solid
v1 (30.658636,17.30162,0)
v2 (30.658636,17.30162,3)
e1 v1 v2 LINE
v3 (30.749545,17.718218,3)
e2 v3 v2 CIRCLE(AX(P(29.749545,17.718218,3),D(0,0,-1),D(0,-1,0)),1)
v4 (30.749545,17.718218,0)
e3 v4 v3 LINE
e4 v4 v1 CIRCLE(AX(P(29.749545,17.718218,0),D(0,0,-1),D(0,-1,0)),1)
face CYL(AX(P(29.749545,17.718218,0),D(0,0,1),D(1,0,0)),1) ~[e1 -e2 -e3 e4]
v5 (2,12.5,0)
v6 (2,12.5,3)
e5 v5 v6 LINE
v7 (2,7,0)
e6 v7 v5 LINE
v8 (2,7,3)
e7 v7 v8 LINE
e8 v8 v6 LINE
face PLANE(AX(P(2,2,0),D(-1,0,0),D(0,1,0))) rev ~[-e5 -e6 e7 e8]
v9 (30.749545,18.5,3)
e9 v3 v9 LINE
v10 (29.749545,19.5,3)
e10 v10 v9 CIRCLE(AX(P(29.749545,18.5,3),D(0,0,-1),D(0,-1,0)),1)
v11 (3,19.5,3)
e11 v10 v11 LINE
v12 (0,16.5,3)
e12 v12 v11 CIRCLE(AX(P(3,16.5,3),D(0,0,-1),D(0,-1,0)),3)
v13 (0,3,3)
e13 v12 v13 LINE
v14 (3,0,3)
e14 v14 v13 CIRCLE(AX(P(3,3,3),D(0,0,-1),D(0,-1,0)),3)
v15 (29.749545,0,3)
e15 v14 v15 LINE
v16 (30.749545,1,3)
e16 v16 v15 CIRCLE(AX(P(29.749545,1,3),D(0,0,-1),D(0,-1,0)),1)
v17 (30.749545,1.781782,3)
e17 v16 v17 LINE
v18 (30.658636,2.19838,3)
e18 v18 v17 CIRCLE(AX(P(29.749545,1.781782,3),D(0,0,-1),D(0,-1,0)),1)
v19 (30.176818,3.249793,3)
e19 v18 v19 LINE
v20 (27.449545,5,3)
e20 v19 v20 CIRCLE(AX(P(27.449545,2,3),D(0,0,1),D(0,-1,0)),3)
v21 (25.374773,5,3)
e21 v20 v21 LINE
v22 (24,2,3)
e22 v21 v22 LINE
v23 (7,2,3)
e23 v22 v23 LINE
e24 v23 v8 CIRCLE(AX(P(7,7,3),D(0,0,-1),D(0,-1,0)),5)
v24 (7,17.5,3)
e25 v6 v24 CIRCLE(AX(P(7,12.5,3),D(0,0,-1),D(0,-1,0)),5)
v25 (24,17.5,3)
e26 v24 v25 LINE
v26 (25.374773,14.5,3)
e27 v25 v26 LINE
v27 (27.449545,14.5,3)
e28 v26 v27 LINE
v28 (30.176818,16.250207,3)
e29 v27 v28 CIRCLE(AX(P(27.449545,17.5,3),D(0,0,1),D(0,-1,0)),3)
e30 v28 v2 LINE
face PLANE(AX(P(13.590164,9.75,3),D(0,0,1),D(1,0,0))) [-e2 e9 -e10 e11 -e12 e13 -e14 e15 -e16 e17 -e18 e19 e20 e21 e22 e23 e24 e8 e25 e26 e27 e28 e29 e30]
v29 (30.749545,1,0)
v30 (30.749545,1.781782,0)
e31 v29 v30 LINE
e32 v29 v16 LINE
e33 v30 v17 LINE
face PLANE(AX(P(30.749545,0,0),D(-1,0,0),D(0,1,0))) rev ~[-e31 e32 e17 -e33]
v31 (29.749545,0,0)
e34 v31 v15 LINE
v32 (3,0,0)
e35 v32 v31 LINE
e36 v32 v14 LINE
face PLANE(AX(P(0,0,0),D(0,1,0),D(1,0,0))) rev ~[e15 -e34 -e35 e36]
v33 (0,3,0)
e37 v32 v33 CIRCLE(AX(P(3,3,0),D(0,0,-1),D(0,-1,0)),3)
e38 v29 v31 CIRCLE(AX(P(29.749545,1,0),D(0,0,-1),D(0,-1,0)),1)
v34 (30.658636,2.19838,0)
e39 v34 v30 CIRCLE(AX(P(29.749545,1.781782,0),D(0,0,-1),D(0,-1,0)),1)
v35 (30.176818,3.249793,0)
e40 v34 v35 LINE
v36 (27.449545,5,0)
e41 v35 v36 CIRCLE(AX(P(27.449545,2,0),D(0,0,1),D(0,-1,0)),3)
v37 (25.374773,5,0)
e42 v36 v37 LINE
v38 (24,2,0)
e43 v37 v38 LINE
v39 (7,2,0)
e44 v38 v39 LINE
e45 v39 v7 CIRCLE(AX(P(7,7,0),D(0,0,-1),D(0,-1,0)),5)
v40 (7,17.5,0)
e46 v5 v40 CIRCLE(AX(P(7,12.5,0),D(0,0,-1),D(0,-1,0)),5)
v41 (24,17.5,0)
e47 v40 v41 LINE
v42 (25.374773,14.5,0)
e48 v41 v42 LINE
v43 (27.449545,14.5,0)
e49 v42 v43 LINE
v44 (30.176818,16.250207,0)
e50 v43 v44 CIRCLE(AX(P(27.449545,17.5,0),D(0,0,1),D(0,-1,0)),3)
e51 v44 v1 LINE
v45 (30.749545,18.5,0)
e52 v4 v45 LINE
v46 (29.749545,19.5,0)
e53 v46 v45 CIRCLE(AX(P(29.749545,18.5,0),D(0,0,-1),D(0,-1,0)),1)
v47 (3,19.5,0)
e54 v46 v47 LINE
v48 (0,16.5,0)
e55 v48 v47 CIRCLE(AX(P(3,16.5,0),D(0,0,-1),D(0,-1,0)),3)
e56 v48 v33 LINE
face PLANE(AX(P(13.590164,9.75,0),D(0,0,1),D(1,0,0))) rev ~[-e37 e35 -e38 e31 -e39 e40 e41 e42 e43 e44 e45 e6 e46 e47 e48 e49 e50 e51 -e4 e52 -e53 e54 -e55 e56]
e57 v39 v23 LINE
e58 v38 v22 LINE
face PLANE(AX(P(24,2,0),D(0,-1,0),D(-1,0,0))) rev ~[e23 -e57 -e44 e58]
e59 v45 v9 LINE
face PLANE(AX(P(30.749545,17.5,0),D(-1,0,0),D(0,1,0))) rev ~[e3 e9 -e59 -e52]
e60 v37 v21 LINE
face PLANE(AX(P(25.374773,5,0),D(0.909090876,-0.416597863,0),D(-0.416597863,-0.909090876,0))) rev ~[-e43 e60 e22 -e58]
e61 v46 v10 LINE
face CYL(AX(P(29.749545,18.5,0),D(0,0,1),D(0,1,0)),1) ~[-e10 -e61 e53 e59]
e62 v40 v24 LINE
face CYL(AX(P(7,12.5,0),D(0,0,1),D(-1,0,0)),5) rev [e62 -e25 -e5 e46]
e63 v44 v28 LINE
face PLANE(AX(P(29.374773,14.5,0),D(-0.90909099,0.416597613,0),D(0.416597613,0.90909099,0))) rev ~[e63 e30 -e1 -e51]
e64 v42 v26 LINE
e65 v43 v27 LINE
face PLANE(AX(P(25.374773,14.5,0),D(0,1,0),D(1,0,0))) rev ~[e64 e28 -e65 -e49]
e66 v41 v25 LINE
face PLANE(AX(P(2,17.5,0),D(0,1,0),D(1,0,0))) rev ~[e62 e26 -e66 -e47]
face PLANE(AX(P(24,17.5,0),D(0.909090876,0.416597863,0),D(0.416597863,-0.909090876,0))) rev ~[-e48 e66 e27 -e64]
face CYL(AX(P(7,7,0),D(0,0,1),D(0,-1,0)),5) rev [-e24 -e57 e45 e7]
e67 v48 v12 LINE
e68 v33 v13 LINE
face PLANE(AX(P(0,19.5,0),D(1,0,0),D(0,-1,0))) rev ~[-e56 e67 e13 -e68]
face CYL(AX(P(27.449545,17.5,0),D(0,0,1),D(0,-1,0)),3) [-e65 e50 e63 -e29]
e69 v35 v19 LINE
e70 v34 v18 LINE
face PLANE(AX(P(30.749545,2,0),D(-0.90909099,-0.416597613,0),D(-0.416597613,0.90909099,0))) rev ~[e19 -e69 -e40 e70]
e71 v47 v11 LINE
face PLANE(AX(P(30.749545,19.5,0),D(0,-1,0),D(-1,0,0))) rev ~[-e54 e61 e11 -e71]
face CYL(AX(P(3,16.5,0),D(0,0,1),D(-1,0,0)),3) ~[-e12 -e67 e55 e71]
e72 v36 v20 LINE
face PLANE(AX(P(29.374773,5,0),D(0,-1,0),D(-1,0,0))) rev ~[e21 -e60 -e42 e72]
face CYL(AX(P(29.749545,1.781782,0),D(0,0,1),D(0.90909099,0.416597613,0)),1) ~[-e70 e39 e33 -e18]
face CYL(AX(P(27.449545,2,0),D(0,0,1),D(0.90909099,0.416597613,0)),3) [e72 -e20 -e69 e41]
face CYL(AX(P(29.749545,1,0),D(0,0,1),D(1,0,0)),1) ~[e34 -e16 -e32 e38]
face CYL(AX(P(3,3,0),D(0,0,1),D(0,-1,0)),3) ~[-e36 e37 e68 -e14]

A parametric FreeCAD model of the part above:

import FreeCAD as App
import Part
import Sketcher

V = App.Vector
Q = App.Units.Quantity


def edges_at(feature, points):
    """Names of the edges that pass closest to the given points."""
    edges = feature.Shape.Edges
    near = lambda p: min(range(len(edges)), key=lambda i: edges[i].distToShape(Part.Vertex(*p))[0])
    return sorted({f"Edge{near(p) + 1}" for p in points})


def add_polygon(sketch, points):
    """Adds a closed chain of lines whose ends are joined by coincident constraints."""
    first, n = sketch.GeometryCount, len(points)
    for a, b in zip(points, points[1:] + points[:1]):
        sketch.addGeometry(Part.LineSegment(App.Vector(*a, 0), App.Vector(*b, 0)), False)
    for i in range(n):
        sketch.addConstraint(Sketcher.Constraint("Coincident", first + i, 2, first + (i + 1) % n, 1))

doc = App.newDocument("Part")
body = doc.addObject("PartDesign::Body", "Body")

sketch1 = body.newObject("Sketcher::SketchObject", "Sketch")
sketch1.AttachmentSupport = (doc.getObject("XY_Plane"), [""])
sketch1.MapMode = "FlatFace"
add_polygon(sketch1, [(0, 0), (30.7, 0), (30.7, 2), (29.4, 5), (25.4, 5), (24, 2), (2, 2), (2, 17.5), (24, 17.5), (25.4, 14.5), (29.4, 14.5), (30.7, 17.5), (30.7, 19.5), (0, 19.5)])
sketch1.addConstraint(Sketcher.Constraint("Horizontal", 0))
sketch1.addConstraint(Sketcher.Constraint("Vertical", 1))
sketch1.addConstraint(Sketcher.Constraint("Horizontal", 3))
sketch1.addConstraint(Sketcher.Constraint("Horizontal", 5))
sketch1.addConstraint(Sketcher.Constraint("Vertical", 6))
sketch1.addConstraint(Sketcher.Constraint("Horizontal", 7))
sketch1.addConstraint(Sketcher.Constraint("Horizontal", 9))
sketch1.addConstraint(Sketcher.Constraint("Vertical", 11))
sketch1.addConstraint(Sketcher.Constraint("Horizontal", 12))
sketch1.addConstraint(Sketcher.Constraint("Vertical", 13))
sketch1.addConstraint(Sketcher.Constraint("Coincident", 13, 2, -1, 1))
sketch1.addConstraint(Sketcher.Constraint("Parallel", 2, 8))
sketch1.addConstraint(Sketcher.Constraint("Parallel", 4, 10))
sketch1.addConstraint(Sketcher.Constraint("Horizontal", 1, 2, 4, 2))
sketch1.addConstraint(Sketcher.Constraint("Horizontal", 7, 2, 10, 2))
sketch1.addConstraint(Sketcher.Constraint("Vertical", 4, 2, 7, 2))
sketch1.addConstraint(Sketcher.Constraint("Vertical", 3, 2, 8, 2))
sketch1.addConstraint(Sketcher.Constraint("Vertical", 2, 2, 9, 2))
sketch1.addConstraint(Sketcher.Constraint("Vertical", 1, 2, 10, 2))
sketch1.addConstraint(Sketcher.Constraint("Equal", 1, 11))
sketch1.addConstraint(Sketcher.Constraint("DistanceX", 3, 2, 3, 1, Q("4 mm")))
sketch1.addConstraint(Sketcher.Constraint("DistanceX", 5, 2, 5, 1, Q("22 mm")))
sketch1.addConstraint(Sketcher.Constraint("DistanceY", 1, 1, 1, 2, Q("2 mm")))
sketch1.addConstraint(Sketcher.Constraint("DistanceY", 6, 1, 6, 2, Q("15.5 mm")))
sketch1.addConstraint(Sketcher.Constraint("DistanceY", -1, 1, 2, 2, Q("5 mm")))
sketch1.addConstraint(Sketcher.Constraint("DistanceX", -1, 1, 4, 2, Q("24 mm")))
sketch1.addConstraint(Sketcher.Constraint("Distance", 2, Q("3.3 mm")))
pad1 = body.newObject("PartDesign::Pad", "Pad")
pad1.Profile = sketch1
pad1.Length = 3
doc.recompute()

fillet = body.newObject("PartDesign::Fillet", "Fillet")
fillet.Base = (pad1, edges_at(pad1, [(29.375, 5, 1.5), (29.375, 14.5, 1.5)]))
fillet.Radius = 3
doc.recompute()

fillet2 = body.newObject("PartDesign::Fillet", "Fillet001")
fillet2.Base = (fillet, edges_at(fillet, [
    (30.75, 2, 1.5),
    (30.75, 0, 1.5),
    (30.75, 19.5, 1.5),
    (30.75, 17.5, 1.5),
]))
fillet2.Radius = 1
doc.recompute()

fillet3 = body.newObject("PartDesign::Fillet", "Fillet002")
fillet3.Base = (fillet2, edges_at(fillet2, [(2, 2, 1.5), (2, 17.5, 1.5)]))
fillet3.Radius = 5
doc.recompute()

fillet4 = body.newObject("PartDesign::Fillet", "Fillet003")
fillet4.Base = (fillet3, edges_at(fillet3, [(0, 0, 1.5), (0, 19.5, 1.5)]))
fillet4.Radius = 3

doc.recompute()
